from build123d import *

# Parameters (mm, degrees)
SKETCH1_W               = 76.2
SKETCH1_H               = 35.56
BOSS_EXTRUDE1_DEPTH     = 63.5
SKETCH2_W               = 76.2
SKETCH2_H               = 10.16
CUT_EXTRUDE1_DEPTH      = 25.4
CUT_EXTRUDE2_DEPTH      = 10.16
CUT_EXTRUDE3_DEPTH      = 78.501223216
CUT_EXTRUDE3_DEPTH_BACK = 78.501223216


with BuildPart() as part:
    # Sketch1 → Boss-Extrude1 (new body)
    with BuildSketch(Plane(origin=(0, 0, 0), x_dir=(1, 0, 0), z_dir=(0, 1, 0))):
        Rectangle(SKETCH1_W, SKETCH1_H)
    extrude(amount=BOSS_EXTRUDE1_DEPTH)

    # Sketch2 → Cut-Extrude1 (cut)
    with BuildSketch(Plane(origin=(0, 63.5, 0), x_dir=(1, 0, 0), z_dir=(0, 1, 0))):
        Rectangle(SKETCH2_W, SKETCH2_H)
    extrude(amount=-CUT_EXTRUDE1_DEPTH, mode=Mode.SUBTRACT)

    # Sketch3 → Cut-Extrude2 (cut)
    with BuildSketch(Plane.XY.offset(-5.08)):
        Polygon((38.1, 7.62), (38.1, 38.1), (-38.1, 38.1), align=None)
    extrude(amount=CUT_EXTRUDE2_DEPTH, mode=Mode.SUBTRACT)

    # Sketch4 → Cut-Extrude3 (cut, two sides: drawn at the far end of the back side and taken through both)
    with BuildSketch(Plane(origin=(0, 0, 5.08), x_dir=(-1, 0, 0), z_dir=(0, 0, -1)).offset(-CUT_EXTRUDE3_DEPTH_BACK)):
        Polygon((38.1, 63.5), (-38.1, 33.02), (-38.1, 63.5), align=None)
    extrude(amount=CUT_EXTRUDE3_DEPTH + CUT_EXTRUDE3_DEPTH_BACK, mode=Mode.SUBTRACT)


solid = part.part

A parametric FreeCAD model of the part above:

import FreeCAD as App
import Part
import Sketcher

V = App.Vector
Q = App.Units.Quantity


def add_polygon(sketch, points):
    """Adds a closed chain of lines whose ends are joined by coincident constraints."""
    first, n = sketch.GeometryCount, len(points)
    for a, b in zip(points, points[1:] + points[:1]):
        sketch.addGeometry(Part.LineSegment(App.Vector(*a, 0), App.Vector(*b, 0)), False)
    for i in range(n):
        sketch.addConstraint(Sketcher.Constraint("Coincident", first + i, 2, first + (i + 1) % n, 1))

doc = App.newDocument("Part")
params = doc.addObject("Spreadsheet::Sheet", "Params")
for row, (alias, value) in enumerate([
    ("sketch1_width", "3 in"),
    ("sketch1_height", "1.4 in"),
    ("pad1_length", "2.5 in"),
    ("sketch2_width", "3 in"),
    ("sketch2_height", "0.4 in"),
    ("pocket1_length", "1 in"),
    ("sketch3_width", "3 in"),
    ("sketch3_height", "1.2 in"),
    ("pocket2_length", "0.4 in"),
    ("sketch4_width", "3 in"),
    ("sketch4_height", "1.2 in"),
], start=1):
    params.set(f"A{row}", alias)
    params.set(f"B{row}", "=" + value)
    params.setAlias(f"B{row}", alias)

body = doc.addObject("PartDesign::Body", "Body")

sketch1 = body.newObject("Sketcher::SketchObject", "Sketch")
sketch1.AttachmentSupport = (doc.getObject("XZ_Plane"), [""])
sketch1.MapMode = "FlatFace"
add_polygon(sketch1, [(-38, -18), (-38, 18), (38, 18), (38, -18)])
sketch1.addConstraint([
    Sketcher.Constraint("Vertical", 0),
    Sketcher.Constraint("Horizontal", 1),
    Sketcher.Constraint("Vertical", 2),
    Sketcher.Constraint("Horizontal", 3),
    Sketcher.Constraint("Symmetric", 0, 2, 2, 2, -1, 1),
    Sketcher.Constraint("DistanceX", 1, 1, 1, 2, Q("3 in")),
    Sketcher.Constraint("DistanceY", 0, 1, 0, 2, Q("1.4 in")),
])
sketch1.setExpression("Constraints[9]", "Params.sketch1_width")
sketch1.setExpression("Constraints[10]", "Params.sketch1_height")
pad1 = body.newObject("PartDesign::Pad", "Pad")
pad1.Profile = sketch1
pad1.setExpression("Length", "Params.pad1_length")
pad1.Reversed = True

sketch2 = body.newObject("Sketcher::SketchObject", "Sketch001")
sketch2.AttachmentSupport = (doc.getObject("XZ_Plane"), [""])
sketch2.MapMode = "FlatFace"
sketch2.AttachmentOffset = App.Placement(V(0, 0, -2.5 * 25.4), App.Rotation())
add_polygon(sketch2, [(-38, -5), (-38, 5), (38, 5), (38, -5)])
sketch2.addConstraint([
    Sketcher.Constraint("Vertical", 0),
    Sketcher.Constraint("Horizontal", 1),
    Sketcher.Constraint("Vertical", 2),
    Sketcher.Constraint("Horizontal", 3),
    Sketcher.Constraint("Symmetric", 0, 2, 2, 2, -1, 1),
    Sketcher.Constraint("DistanceX", 1, 1, 1, 2, Q("3 in")),
    Sketcher.Constraint("DistanceY", 0, 1, 0, 2, Q("0.4 in")),
])
sketch2.setExpression("Constraints[9]", "Params.sketch2_width")
sketch2.setExpression("Constraints[10]", "Params.sketch2_height")
pocket1 = body.newObject("PartDesign::Pocket", "Pocket")
pocket1.Profile = sketch2
pocket1.setExpression("Length", "Params.pocket1_length")
pocket1.Reversed = True

sketch3 = body.newObject("Sketcher::SketchObject", "Sketch002")
sketch3.AttachmentSupport = (doc.getObject("XY_Plane"), [""])
sketch3.MapMode = "FlatFace"
sketch3.AttachmentOffset = App.Placement(V(0, 0, -0.2 * 25.4), App.Rotation())
add_polygon(sketch3, [(38, 8), (38, 38), (-38, 38)])
sketch3.addConstraint([
    Sketcher.Constraint("Vertical", 0),
    Sketcher.Constraint("Horizontal", 1),
    Sketcher.Constraint("DistanceX", 1, 2, 1, 1, Q("3 in")),
    Sketcher.Constraint("DistanceY", 0, 1, 0, 2, Q("1.2 in")),
    Sketcher.Constraint("DistanceX", -1, 1, 0, 2, Q("1.5 in")),
    Sketcher.Constraint("DistanceY", -1, 1, 0, 2, Q("1.5 in")),
])
sketch3.setExpression("Constraints[5]", "Params.sketch3_width")
sketch3.setExpression("Constraints[6]", "Params.sketch3_height")
pocket2 = body.newObject("PartDesign::Pocket", "Pocket001")
pocket2.Profile = sketch3
pocket2.setExpression("Length", "Params.pocket2_length")
pocket2.Reversed = True

sketch4 = body.newObject("Sketcher::SketchObject", "Sketch003")
sketch4.AttachmentSupport = (doc.getObject("XY_Plane"), [""])
sketch4.MapMode = "FlatFace"
sketch4.AttachmentOffset = App.Placement(V(0, 0, 0.2 * 25.4), App.Rotation())
add_polygon(sketch4, [(38, 33), (-38, 64), (38, 64)])
sketch4.addConstraint([
    Sketcher.Constraint("Horizontal", 1),
    Sketcher.Constraint("Vertical", 2),
    Sketcher.Constraint("DistanceX", 1, 1, 1, 2, Q("3 in")),
    Sketcher.Constraint("DistanceY", 2, 2, 2, 1, Q("1.2 in")),
    Sketcher.Constraint("DistanceX", 0, 2, -1, 1, Q("1.5 in")),
    Sketcher.Constraint("DistanceY", -1, 1, 0, 2, Q("2.5 in")),
])
sketch4.setExpression("Constraints[5]", "Params.sketch4_width")
sketch4.setExpression("Constraints[6]", "Params.sketch4_height")
pocket3 = body.newObject("PartDesign::Pocket", "Pocket002")
pocket3.Profile = sketch4
pocket3.Type = "ThroughAll"
pocket3.Midplane = True

doc.recompute()
